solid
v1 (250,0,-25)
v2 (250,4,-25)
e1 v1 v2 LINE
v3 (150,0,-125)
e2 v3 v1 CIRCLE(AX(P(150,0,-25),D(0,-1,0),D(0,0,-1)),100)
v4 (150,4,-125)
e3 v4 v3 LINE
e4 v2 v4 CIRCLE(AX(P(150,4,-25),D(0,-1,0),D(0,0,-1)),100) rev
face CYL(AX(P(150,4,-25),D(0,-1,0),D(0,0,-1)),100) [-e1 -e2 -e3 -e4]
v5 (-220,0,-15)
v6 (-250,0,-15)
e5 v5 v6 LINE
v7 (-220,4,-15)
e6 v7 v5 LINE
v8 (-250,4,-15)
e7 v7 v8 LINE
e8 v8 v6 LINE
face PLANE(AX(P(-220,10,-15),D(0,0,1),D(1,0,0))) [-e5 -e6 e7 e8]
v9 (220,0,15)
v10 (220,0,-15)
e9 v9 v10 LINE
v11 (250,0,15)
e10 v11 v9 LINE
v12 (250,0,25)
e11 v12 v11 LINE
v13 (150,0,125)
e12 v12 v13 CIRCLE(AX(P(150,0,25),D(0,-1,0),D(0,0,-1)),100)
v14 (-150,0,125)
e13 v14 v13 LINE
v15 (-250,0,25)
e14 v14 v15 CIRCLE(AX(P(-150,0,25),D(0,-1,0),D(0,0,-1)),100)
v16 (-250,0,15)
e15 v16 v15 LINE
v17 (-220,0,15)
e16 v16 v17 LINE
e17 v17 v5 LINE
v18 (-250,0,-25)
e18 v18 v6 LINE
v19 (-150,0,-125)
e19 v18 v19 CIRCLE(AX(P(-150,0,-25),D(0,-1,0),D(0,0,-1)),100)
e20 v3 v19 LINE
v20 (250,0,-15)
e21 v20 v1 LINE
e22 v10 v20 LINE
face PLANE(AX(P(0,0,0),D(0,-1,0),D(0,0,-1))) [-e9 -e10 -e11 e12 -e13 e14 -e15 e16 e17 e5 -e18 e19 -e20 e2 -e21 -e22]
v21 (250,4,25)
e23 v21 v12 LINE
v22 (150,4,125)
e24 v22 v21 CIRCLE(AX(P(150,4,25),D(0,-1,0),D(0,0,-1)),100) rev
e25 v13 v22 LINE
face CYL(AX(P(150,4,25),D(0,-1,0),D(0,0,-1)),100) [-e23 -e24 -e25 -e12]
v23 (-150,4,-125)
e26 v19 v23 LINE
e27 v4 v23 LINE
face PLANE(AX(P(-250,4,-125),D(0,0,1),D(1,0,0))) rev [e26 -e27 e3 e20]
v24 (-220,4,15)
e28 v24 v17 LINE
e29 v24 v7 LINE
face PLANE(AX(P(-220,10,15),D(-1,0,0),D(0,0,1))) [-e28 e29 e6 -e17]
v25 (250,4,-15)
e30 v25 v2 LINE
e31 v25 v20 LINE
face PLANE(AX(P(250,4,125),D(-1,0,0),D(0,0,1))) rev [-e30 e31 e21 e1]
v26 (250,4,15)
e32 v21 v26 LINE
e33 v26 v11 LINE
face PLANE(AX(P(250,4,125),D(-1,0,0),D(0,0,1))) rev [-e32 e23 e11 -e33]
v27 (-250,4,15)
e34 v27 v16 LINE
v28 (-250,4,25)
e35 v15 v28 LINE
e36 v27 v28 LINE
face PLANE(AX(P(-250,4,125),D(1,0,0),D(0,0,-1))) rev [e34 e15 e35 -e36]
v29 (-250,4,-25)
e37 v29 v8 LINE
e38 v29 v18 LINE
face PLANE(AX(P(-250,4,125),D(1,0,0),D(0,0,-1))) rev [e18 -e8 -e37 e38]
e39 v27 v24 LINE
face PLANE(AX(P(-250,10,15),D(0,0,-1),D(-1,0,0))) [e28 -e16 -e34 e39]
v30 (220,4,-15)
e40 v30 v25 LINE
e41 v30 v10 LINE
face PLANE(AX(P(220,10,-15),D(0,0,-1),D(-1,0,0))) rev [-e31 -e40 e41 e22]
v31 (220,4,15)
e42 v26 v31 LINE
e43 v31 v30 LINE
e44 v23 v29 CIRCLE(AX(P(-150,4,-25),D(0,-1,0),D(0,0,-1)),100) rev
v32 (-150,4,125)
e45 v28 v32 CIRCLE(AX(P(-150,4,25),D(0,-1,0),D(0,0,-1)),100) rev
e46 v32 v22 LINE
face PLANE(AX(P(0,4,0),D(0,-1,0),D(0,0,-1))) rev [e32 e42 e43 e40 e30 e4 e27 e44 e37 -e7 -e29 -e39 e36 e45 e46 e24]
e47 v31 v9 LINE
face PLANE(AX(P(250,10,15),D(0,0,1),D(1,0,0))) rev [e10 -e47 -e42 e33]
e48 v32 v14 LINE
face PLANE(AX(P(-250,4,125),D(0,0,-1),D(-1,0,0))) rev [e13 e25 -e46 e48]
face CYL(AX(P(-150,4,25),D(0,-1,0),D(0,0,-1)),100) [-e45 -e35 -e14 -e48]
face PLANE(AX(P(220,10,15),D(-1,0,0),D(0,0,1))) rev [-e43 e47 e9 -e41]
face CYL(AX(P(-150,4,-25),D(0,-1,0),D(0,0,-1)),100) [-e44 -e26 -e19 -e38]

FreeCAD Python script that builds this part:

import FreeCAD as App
import Part
import Sketcher


def edges_at(feature, points):
    """Names of the edges that pass closest to the given points."""
    edges = feature.Shape.Edges
    near = lambda p: min(range(len(edges)), key=lambda i: edges[i].distToShape(Part.Vertex(*p))[0])
    return sorted({f"Edge{near(p) + 1}" for p in points})

doc = App.newDocument("Part")
params = doc.addObject("Spreadsheet::Sheet", "Params")
for row, (alias, value) in enumerate([
    ("sketch1_width", "500 mm"),
    ("sketch1_height", "250 mm"),
    ("pad1_length", "4 mm"),
    ("fillet_radius", "100 mm"),
    ("sketch2_width", "30 mm"),
    ("pocket1_length", "10 mm"),
], start=1):
    params.set(f"A{row}", alias)
    params.set(f"B{row}", "=" + value)
    params.setAlias(f"B{row}", alias)

body = doc.addObject("PartDesign::Body", "Body")

# Sketch on XZ plane
sketch1 = body.newObject("Sketcher::SketchObject", "Sketch")
sketch1.AttachmentSupport = (doc.getObject("XZ_Plane"), [""])
sketch1.MapMode = "FlatFace"
sketch1.addGeometry(Part.LineSegment(App.Vector(-250, -125, 0), App.Vector(-250, 125, 0)), False)
sketch1.addGeometry(Part.LineSegment(App.Vector(-250, 125, 0), App.Vector(250, 125, 0)), False)
sketch1.addGeometry(Part.LineSegment(App.Vector(250, 125, 0), App.Vector(250, -125, 0)), False)
sketch1.addGeometry(Part.LineSegment(App.Vector(250, -125, 0), App.Vector(-250, -125, 0)), False)
sketch1.addConstraint(Sketcher.Constraint("Coincident", 0, 2, 1, 1))
sketch1.addConstraint(Sketcher.Constraint("Coincident", 1, 2, 2, 1))
sketch1.addConstraint(Sketcher.Constraint("Coincident", 2, 2, 3, 1))
sketch1.addConstraint(Sketcher.Constraint("Coincident", 3, 2, 0, 1))
sketch1.addConstraint(Sketcher.Constraint("Vertical", 0))
sketch1.addConstraint(Sketcher.Constraint("Horizontal", 1))
sketch1.addConstraint(Sketcher.Constraint("Vertical", 2))
sketch1.addConstraint(Sketcher.Constraint("Horizontal", 3))
sketch1.addConstraint(Sketcher.Constraint("Symmetric", 0, 2, 2, 2, -1, 1))
sketch1.addConstraint(Sketcher.Constraint("DistanceX", 1, 1, 1, 2, 500.0))
sketch1.addConstraint(Sketcher.Constraint("DistanceY", 0, 1, 0, 2, 250.0))
sketch1.setExpression("Constraints[9]", "Params.sketch1_width")
sketch1.setExpression("Constraints[10]", "Params.sketch1_height")
pad1 = body.newObject("PartDesign::Pad", "Pad")
pad1.Profile = sketch1
pad1.setExpression("Length", "Params.pad1_length")
pad1.Reversed = True
doc.recompute()

fillet = body.newObject("PartDesign::Fillet", "Fillet")
fillet.Base = (pad1, edges_at(pad1, [
    (250, 2, 125),
    (-250, 2, 125),
    (-250, 2, -125),
    (250, 2, -125),
]))
fillet.setExpression("Radius", "Params.fillet_radius")

# Sketch on XZ plane
sketch2 = body.newObject("Sketcher::SketchObject", "Sketch001")
sketch2.AttachmentSupport = (doc.getObject("XZ_Plane"), [""])
sketch2.MapMode = "FlatFace"
sketch2.addGeometry(Part.LineSegment(App.Vector(-250, 15, 0), App.Vector(-250, -15, 0)), False)
sketch2.addGeometry(Part.LineSegment(App.Vector(-250, -15, 0), App.Vector(-220, -15, 0)), False)
sketch2.addGeometry(Part.LineSegment(App.Vector(-220, -15, 0), App.Vector(-220, 15, 0)), False)
sketch2.addGeometry(Part.LineSegment(App.Vector(-220, 15, 0), App.Vector(-250, 15, 0)), False)
sketch2.addGeometry(Part.LineSegment(App.Vector(250, 15, 0), App.Vector(220, 15, 0)), False)
sketch2.addGeometry(Part.LineSegment(App.Vector(220, 15, 0), App.Vector(220, -15, 0)), False)
sketch2.addGeometry(Part.LineSegment(App.Vector(220, -15, 0), App.Vector(250, -15, 0)), False)
sketch2.addGeometry(Part.LineSegment(App.Vector(250, -15, 0), App.Vector(250, 15, 0)), False)
sketch2.addConstraint(Sketcher.Constraint("Coincident", 0, 2, 1, 1))
sketch2.addConstraint(Sketcher.Constraint("Coincident", 1, 2, 2, 1))
sketch2.addConstraint(Sketcher.Constraint("Coincident", 2, 2, 3, 1))
sketch2.addConstraint(Sketcher.Constraint("Coincident", 3, 2, 0, 1))
sketch2.addConstraint(Sketcher.Constraint("Coincident", 4, 2, 5, 1))
sketch2.addConstraint(Sketcher.Constraint("Coincident", 5, 2, 6, 1))
sketch2.addConstraint(Sketcher.Constraint("Coincident", 6, 2, 7, 1))
sketch2.addConstraint(Sketcher.Constraint("Coincident", 7, 2, 4, 1))
sketch2.addConstraint(Sketcher.Constraint("Vertical", 0))
sketch2.addConstraint(Sketcher.Constraint("Horizontal", 1))
sketch2.addConstraint(Sketcher.Constraint("Vertical", 2))
sketch2.addConstraint(Sketcher.Constraint("Horizontal", 3))
sketch2.addConstraint(Sketcher.Constraint("Horizontal", 4))
sketch2.addConstraint(Sketcher.Constraint("Vertical", 5))
sketch2.addConstraint(Sketcher.Constraint("Horizontal", 6))
sketch2.addConstraint(Sketcher.Constraint("Vertical", 7))
sketch2.addConstraint(Sketcher.Constraint("Symmetric", 1, 2, 4, 2, -1, 1))
sketch2.addConstraint(Sketcher.Constraint("Symmetric", 3, 2, 6, 2, -1, 1))
sketch2.addConstraint(Sketcher.Constraint("Horizontal", 3, 2, 4, 2))
sketch2.addConstraint(Sketcher.Constraint("Equal", 6, 0))
sketch2.addConstraint(Sketcher.Constraint("DistanceX", 1, 1, 1, 2, 30.0))
sketch2.addConstraint(Sketcher.Constraint("DistanceX", 0, 2, -1, 1, 250.0))
sketch2.setExpression("Constraints[20]", "Params.sketch2_width")
pocket1 = body.newObject("PartDesign::Pocket", "Pocket")
pocket1.Profile = sketch2
pocket1.setExpression("Length", "Params.pocket1_length")

doc.recompute()
